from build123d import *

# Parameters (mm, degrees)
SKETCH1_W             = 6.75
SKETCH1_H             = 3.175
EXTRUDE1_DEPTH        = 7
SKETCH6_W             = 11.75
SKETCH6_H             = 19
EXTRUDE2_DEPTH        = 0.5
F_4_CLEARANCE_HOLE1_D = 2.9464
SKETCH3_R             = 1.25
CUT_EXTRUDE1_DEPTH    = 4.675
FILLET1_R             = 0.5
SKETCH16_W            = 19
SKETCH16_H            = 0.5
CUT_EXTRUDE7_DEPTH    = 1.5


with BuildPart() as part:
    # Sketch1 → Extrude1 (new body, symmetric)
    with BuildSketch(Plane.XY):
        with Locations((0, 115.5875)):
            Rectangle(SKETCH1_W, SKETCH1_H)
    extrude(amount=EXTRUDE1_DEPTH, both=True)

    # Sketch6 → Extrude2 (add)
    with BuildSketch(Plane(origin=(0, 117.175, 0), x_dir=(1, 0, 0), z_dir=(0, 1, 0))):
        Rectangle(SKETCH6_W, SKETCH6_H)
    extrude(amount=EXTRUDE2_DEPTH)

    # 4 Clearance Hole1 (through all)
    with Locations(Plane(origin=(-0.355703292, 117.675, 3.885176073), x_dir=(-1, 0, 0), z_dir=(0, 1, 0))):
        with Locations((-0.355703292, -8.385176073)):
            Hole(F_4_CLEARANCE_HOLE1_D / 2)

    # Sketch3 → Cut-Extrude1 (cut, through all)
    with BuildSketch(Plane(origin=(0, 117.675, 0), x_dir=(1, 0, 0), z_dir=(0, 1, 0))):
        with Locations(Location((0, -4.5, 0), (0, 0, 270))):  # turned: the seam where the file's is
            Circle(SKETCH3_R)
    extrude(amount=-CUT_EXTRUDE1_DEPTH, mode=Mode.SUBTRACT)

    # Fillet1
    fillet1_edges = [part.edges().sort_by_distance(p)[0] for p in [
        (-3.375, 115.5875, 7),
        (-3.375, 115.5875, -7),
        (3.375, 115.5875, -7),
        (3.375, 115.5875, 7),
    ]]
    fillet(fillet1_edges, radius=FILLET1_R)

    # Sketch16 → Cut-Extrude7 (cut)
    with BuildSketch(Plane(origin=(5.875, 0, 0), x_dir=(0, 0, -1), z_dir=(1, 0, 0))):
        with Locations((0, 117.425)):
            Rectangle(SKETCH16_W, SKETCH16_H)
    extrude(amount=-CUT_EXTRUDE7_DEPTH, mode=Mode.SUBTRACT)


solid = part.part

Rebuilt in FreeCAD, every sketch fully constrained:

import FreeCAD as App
import Part
import Sketcher
from FreeCAD import Vector


def edges_at(feature, points):
    """Names of the edges that pass closest to the given points."""
    edges = feature.Shape.Edges
    near = lambda p: min(range(len(edges)), key=lambda i: edges[i].distToShape(Part.Vertex(*p))[0])
    return sorted({f"Edge{near(p) + 1}" for p in points})


def add_polygon(sketch, points):
    """Adds a closed chain of lines whose ends are joined by coincident constraints."""
    first, n = sketch.GeometryCount, len(points)
    for a, b in zip(points, points[1:] + points[:1]):
        sketch.addGeometry(Part.LineSegment(App.Vector(*a, 0), App.Vector(*b, 0)), False)
    for i in range(n):
        sketch.addConstraint(Sketcher.Constraint("Coincident", first + i, 2, first + (i + 1) % n, 1))

doc = App.newDocument("Part")
body = doc.addObject("PartDesign::Body", "Body")

sketch1 = doc.addObject("Sketcher::SketchObject", "Sketch")
body.addObject(sketch1)
sketch1.AttachmentSupport = (doc.XY_Plane, [""])
sketch1.MapMode = "FlatFace"
add_polygon(sketch1, [(-3.4, 117.2), (-3.4, 114), (3.4, 114), (3.4, 117.2)])
sketch1.addConstraint(Sketcher.Constraint("Vertical", 0))
sketch1.addConstraint(Sketcher.Constraint("Horizontal", 1))
sketch1.addConstraint(Sketcher.Constraint("Vertical", 2))
sketch1.addConstraint(Sketcher.Constraint("Horizontal", 3))
sketch1.addConstraint(Sketcher.Constraint("DistanceY", -1, 1, 0, 2, 114.0))
sketch1.addConstraint(Sketcher.Constraint("DistanceX", 1, 1, 1, 2, 6.75))
sketch1.addConstraint(Sketcher.Constraint("DistanceY", 0, 2, 0, 1, 3.175))
sketch1.addConstraint(Sketcher.Constraint("DistanceX", 0, 2, -1, 1, 3.375))
pad1 = doc.addObject("PartDesign::Pad", "Pad")
body.addObject(pad1)
pad1.Profile = sketch1
pad1.Length = 14
pad1.Midplane = True

sketch2 = doc.addObject("Sketcher::SketchObject", "Sketch001")
body.addObject(sketch2)
sketch2.AttachmentSupport = (doc.XZ_Plane, [""])
sketch2.MapMode = "FlatFace"
sketch2.AttachmentOffset = App.Placement(Vector(0, 0, -117.175), App.Rotation())
add_polygon(sketch2, [(-6, -10), (-6, 10), (6, 10), (6, -10)])
sketch2.addConstraint(Sketcher.Constraint("Vertical", 0))
sketch2.addConstraint(Sketcher.Constraint("Horizontal", 1))
sketch2.addConstraint(Sketcher.Constraint("Vertical", 2))
sketch2.addConstraint(Sketcher.Constraint("Horizontal", 3))
sketch2.addConstraint(Sketcher.Constraint("Symmetric", 0, 2, 2, 2, -1, 1))
sketch2.addConstraint(Sketcher.Constraint("DistanceY", 0, 1, 0, 2, 19.0))
sketch2.addConstraint(Sketcher.Constraint("DistanceX", 1, 1, 1, 2, 11.75))
pad2 = doc.addObject("PartDesign::Pad", "Pad001")
body.addObject(pad2)
pad2.Profile = sketch2
pad2.Length = 0.5
pad2.Reversed = True

sketch3 = doc.addObject("Sketcher::SketchObject", "Sketch002")
body.addObject(sketch3)
sketch3.AttachmentSupport = (doc.XZ_Plane, [""])
sketch3.MapMode = "FlatFace"
sketch3.AttachmentOffset = App.Placement(Vector(0, 0, -117.675), App.Rotation())
sketch3.addGeometry(Part.Circle(Vector(0, -4.5, 0), Vector(0, 0, 1), 1.5), False)
sketch3.addConstraint(Sketcher.Constraint("PointOnObject", 0, 3, -2))
sketch3.addConstraint(Sketcher.Constraint("Diameter", 0, 2.9464))
sketch3.addConstraint(Sketcher.Constraint("DistanceY", 0, 3, -1, 1, 4.5))
doc.recompute()
hole = doc.addObject("PartDesign::Hole", "Hole")
body.addObject(hole)
hole.Profile = sketch3
hole.ThreadType = "None"
hole.Diameter = 2.9464
hole.DepthType = "ThroughAll"
hole.Reversed = True

sketch4 = doc.addObject("Sketcher::SketchObject", "Sketch003")
body.addObject(sketch4)
sketch4.AttachmentSupport = (doc.XZ_Plane, [""])
sketch4.MapMode = "FlatFace"
sketch4.AttachmentOffset = App.Placement(Vector(0, 0, -117.675), App.Rotation())
sketch4.addGeometry(Part.Circle(Vector(0, 4.5, 0), Vector(0, 0, 1), 1.2), False)
sketch4.addConstraint(Sketcher.Constraint("PointOnObject", 0, 3, -2))
sketch4.addConstraint(Sketcher.Constraint("Diameter", 0, 2.5))
sketch4.addConstraint(Sketcher.Constraint("DistanceY", -1, 1, 0, 3, 4.5))
pocket1 = doc.addObject("PartDesign::Pocket", "Pocket")
body.addObject(pocket1)
pocket1.Profile = sketch4
pocket1.Type = "ThroughAll"
pocket1.Reversed = True
doc.recompute()

fillet = doc.addObject("PartDesign::Fillet", "Fillet")
body.addObject(fillet)
fillet.Base = (pocket1, edges_at(pocket1, [
    (-3.375, 115.588, 7),
    (-3.375, 115.588, -7),
    (3.375, 115.588, -7),
    (3.375, 115.588, 7),
]))
fillet.Radius = 0.5

sketch5 = doc.addObject("Sketcher::SketchObject", "Sketch004")
body.addObject(sketch5)
sketch5.AttachmentSupport = (doc.YZ_Plane, [""])
sketch5.MapMode = "FlatFace"
sketch5.AttachmentOffset = App.Placement(Vector(0, 0, 5.875), App.Rotation())
add_polygon(sketch5, [(117.7, 9.5), (117.2, 9.5), (117.2, -9.5), (117.7, -9.5)])
sketch5.addConstraint(Sketcher.Constraint("Horizontal", 0))
sketch5.addConstraint(Sketcher.Constraint("Vertical", 1))
sketch5.addConstraint(Sketcher.Constraint("Horizontal", 2))
sketch5.addConstraint(Sketcher.Constraint("Vertical", 3))
sketch5.addConstraint(Sketcher.Constraint("DistanceY", 1, 2, 1, 1, 19.0))
sketch5.addConstraint(Sketcher.Constraint("DistanceX", 0, 2, 0, 1, 0.5))
sketch5.addConstraint(Sketcher.Constraint("DistanceY", -1, 1, 0, 2, 9.5))
sketch5.addConstraint(Sketcher.Constraint("DistanceX", -1, 1, 0, 2, 117.175))
pocket2 = doc.addObject("PartDesign::Pocket", "Pocket001")
body.addObject(pocket2)
pocket2.Profile = sketch5
pocket2.Length = 1.5

doc.recompute()
